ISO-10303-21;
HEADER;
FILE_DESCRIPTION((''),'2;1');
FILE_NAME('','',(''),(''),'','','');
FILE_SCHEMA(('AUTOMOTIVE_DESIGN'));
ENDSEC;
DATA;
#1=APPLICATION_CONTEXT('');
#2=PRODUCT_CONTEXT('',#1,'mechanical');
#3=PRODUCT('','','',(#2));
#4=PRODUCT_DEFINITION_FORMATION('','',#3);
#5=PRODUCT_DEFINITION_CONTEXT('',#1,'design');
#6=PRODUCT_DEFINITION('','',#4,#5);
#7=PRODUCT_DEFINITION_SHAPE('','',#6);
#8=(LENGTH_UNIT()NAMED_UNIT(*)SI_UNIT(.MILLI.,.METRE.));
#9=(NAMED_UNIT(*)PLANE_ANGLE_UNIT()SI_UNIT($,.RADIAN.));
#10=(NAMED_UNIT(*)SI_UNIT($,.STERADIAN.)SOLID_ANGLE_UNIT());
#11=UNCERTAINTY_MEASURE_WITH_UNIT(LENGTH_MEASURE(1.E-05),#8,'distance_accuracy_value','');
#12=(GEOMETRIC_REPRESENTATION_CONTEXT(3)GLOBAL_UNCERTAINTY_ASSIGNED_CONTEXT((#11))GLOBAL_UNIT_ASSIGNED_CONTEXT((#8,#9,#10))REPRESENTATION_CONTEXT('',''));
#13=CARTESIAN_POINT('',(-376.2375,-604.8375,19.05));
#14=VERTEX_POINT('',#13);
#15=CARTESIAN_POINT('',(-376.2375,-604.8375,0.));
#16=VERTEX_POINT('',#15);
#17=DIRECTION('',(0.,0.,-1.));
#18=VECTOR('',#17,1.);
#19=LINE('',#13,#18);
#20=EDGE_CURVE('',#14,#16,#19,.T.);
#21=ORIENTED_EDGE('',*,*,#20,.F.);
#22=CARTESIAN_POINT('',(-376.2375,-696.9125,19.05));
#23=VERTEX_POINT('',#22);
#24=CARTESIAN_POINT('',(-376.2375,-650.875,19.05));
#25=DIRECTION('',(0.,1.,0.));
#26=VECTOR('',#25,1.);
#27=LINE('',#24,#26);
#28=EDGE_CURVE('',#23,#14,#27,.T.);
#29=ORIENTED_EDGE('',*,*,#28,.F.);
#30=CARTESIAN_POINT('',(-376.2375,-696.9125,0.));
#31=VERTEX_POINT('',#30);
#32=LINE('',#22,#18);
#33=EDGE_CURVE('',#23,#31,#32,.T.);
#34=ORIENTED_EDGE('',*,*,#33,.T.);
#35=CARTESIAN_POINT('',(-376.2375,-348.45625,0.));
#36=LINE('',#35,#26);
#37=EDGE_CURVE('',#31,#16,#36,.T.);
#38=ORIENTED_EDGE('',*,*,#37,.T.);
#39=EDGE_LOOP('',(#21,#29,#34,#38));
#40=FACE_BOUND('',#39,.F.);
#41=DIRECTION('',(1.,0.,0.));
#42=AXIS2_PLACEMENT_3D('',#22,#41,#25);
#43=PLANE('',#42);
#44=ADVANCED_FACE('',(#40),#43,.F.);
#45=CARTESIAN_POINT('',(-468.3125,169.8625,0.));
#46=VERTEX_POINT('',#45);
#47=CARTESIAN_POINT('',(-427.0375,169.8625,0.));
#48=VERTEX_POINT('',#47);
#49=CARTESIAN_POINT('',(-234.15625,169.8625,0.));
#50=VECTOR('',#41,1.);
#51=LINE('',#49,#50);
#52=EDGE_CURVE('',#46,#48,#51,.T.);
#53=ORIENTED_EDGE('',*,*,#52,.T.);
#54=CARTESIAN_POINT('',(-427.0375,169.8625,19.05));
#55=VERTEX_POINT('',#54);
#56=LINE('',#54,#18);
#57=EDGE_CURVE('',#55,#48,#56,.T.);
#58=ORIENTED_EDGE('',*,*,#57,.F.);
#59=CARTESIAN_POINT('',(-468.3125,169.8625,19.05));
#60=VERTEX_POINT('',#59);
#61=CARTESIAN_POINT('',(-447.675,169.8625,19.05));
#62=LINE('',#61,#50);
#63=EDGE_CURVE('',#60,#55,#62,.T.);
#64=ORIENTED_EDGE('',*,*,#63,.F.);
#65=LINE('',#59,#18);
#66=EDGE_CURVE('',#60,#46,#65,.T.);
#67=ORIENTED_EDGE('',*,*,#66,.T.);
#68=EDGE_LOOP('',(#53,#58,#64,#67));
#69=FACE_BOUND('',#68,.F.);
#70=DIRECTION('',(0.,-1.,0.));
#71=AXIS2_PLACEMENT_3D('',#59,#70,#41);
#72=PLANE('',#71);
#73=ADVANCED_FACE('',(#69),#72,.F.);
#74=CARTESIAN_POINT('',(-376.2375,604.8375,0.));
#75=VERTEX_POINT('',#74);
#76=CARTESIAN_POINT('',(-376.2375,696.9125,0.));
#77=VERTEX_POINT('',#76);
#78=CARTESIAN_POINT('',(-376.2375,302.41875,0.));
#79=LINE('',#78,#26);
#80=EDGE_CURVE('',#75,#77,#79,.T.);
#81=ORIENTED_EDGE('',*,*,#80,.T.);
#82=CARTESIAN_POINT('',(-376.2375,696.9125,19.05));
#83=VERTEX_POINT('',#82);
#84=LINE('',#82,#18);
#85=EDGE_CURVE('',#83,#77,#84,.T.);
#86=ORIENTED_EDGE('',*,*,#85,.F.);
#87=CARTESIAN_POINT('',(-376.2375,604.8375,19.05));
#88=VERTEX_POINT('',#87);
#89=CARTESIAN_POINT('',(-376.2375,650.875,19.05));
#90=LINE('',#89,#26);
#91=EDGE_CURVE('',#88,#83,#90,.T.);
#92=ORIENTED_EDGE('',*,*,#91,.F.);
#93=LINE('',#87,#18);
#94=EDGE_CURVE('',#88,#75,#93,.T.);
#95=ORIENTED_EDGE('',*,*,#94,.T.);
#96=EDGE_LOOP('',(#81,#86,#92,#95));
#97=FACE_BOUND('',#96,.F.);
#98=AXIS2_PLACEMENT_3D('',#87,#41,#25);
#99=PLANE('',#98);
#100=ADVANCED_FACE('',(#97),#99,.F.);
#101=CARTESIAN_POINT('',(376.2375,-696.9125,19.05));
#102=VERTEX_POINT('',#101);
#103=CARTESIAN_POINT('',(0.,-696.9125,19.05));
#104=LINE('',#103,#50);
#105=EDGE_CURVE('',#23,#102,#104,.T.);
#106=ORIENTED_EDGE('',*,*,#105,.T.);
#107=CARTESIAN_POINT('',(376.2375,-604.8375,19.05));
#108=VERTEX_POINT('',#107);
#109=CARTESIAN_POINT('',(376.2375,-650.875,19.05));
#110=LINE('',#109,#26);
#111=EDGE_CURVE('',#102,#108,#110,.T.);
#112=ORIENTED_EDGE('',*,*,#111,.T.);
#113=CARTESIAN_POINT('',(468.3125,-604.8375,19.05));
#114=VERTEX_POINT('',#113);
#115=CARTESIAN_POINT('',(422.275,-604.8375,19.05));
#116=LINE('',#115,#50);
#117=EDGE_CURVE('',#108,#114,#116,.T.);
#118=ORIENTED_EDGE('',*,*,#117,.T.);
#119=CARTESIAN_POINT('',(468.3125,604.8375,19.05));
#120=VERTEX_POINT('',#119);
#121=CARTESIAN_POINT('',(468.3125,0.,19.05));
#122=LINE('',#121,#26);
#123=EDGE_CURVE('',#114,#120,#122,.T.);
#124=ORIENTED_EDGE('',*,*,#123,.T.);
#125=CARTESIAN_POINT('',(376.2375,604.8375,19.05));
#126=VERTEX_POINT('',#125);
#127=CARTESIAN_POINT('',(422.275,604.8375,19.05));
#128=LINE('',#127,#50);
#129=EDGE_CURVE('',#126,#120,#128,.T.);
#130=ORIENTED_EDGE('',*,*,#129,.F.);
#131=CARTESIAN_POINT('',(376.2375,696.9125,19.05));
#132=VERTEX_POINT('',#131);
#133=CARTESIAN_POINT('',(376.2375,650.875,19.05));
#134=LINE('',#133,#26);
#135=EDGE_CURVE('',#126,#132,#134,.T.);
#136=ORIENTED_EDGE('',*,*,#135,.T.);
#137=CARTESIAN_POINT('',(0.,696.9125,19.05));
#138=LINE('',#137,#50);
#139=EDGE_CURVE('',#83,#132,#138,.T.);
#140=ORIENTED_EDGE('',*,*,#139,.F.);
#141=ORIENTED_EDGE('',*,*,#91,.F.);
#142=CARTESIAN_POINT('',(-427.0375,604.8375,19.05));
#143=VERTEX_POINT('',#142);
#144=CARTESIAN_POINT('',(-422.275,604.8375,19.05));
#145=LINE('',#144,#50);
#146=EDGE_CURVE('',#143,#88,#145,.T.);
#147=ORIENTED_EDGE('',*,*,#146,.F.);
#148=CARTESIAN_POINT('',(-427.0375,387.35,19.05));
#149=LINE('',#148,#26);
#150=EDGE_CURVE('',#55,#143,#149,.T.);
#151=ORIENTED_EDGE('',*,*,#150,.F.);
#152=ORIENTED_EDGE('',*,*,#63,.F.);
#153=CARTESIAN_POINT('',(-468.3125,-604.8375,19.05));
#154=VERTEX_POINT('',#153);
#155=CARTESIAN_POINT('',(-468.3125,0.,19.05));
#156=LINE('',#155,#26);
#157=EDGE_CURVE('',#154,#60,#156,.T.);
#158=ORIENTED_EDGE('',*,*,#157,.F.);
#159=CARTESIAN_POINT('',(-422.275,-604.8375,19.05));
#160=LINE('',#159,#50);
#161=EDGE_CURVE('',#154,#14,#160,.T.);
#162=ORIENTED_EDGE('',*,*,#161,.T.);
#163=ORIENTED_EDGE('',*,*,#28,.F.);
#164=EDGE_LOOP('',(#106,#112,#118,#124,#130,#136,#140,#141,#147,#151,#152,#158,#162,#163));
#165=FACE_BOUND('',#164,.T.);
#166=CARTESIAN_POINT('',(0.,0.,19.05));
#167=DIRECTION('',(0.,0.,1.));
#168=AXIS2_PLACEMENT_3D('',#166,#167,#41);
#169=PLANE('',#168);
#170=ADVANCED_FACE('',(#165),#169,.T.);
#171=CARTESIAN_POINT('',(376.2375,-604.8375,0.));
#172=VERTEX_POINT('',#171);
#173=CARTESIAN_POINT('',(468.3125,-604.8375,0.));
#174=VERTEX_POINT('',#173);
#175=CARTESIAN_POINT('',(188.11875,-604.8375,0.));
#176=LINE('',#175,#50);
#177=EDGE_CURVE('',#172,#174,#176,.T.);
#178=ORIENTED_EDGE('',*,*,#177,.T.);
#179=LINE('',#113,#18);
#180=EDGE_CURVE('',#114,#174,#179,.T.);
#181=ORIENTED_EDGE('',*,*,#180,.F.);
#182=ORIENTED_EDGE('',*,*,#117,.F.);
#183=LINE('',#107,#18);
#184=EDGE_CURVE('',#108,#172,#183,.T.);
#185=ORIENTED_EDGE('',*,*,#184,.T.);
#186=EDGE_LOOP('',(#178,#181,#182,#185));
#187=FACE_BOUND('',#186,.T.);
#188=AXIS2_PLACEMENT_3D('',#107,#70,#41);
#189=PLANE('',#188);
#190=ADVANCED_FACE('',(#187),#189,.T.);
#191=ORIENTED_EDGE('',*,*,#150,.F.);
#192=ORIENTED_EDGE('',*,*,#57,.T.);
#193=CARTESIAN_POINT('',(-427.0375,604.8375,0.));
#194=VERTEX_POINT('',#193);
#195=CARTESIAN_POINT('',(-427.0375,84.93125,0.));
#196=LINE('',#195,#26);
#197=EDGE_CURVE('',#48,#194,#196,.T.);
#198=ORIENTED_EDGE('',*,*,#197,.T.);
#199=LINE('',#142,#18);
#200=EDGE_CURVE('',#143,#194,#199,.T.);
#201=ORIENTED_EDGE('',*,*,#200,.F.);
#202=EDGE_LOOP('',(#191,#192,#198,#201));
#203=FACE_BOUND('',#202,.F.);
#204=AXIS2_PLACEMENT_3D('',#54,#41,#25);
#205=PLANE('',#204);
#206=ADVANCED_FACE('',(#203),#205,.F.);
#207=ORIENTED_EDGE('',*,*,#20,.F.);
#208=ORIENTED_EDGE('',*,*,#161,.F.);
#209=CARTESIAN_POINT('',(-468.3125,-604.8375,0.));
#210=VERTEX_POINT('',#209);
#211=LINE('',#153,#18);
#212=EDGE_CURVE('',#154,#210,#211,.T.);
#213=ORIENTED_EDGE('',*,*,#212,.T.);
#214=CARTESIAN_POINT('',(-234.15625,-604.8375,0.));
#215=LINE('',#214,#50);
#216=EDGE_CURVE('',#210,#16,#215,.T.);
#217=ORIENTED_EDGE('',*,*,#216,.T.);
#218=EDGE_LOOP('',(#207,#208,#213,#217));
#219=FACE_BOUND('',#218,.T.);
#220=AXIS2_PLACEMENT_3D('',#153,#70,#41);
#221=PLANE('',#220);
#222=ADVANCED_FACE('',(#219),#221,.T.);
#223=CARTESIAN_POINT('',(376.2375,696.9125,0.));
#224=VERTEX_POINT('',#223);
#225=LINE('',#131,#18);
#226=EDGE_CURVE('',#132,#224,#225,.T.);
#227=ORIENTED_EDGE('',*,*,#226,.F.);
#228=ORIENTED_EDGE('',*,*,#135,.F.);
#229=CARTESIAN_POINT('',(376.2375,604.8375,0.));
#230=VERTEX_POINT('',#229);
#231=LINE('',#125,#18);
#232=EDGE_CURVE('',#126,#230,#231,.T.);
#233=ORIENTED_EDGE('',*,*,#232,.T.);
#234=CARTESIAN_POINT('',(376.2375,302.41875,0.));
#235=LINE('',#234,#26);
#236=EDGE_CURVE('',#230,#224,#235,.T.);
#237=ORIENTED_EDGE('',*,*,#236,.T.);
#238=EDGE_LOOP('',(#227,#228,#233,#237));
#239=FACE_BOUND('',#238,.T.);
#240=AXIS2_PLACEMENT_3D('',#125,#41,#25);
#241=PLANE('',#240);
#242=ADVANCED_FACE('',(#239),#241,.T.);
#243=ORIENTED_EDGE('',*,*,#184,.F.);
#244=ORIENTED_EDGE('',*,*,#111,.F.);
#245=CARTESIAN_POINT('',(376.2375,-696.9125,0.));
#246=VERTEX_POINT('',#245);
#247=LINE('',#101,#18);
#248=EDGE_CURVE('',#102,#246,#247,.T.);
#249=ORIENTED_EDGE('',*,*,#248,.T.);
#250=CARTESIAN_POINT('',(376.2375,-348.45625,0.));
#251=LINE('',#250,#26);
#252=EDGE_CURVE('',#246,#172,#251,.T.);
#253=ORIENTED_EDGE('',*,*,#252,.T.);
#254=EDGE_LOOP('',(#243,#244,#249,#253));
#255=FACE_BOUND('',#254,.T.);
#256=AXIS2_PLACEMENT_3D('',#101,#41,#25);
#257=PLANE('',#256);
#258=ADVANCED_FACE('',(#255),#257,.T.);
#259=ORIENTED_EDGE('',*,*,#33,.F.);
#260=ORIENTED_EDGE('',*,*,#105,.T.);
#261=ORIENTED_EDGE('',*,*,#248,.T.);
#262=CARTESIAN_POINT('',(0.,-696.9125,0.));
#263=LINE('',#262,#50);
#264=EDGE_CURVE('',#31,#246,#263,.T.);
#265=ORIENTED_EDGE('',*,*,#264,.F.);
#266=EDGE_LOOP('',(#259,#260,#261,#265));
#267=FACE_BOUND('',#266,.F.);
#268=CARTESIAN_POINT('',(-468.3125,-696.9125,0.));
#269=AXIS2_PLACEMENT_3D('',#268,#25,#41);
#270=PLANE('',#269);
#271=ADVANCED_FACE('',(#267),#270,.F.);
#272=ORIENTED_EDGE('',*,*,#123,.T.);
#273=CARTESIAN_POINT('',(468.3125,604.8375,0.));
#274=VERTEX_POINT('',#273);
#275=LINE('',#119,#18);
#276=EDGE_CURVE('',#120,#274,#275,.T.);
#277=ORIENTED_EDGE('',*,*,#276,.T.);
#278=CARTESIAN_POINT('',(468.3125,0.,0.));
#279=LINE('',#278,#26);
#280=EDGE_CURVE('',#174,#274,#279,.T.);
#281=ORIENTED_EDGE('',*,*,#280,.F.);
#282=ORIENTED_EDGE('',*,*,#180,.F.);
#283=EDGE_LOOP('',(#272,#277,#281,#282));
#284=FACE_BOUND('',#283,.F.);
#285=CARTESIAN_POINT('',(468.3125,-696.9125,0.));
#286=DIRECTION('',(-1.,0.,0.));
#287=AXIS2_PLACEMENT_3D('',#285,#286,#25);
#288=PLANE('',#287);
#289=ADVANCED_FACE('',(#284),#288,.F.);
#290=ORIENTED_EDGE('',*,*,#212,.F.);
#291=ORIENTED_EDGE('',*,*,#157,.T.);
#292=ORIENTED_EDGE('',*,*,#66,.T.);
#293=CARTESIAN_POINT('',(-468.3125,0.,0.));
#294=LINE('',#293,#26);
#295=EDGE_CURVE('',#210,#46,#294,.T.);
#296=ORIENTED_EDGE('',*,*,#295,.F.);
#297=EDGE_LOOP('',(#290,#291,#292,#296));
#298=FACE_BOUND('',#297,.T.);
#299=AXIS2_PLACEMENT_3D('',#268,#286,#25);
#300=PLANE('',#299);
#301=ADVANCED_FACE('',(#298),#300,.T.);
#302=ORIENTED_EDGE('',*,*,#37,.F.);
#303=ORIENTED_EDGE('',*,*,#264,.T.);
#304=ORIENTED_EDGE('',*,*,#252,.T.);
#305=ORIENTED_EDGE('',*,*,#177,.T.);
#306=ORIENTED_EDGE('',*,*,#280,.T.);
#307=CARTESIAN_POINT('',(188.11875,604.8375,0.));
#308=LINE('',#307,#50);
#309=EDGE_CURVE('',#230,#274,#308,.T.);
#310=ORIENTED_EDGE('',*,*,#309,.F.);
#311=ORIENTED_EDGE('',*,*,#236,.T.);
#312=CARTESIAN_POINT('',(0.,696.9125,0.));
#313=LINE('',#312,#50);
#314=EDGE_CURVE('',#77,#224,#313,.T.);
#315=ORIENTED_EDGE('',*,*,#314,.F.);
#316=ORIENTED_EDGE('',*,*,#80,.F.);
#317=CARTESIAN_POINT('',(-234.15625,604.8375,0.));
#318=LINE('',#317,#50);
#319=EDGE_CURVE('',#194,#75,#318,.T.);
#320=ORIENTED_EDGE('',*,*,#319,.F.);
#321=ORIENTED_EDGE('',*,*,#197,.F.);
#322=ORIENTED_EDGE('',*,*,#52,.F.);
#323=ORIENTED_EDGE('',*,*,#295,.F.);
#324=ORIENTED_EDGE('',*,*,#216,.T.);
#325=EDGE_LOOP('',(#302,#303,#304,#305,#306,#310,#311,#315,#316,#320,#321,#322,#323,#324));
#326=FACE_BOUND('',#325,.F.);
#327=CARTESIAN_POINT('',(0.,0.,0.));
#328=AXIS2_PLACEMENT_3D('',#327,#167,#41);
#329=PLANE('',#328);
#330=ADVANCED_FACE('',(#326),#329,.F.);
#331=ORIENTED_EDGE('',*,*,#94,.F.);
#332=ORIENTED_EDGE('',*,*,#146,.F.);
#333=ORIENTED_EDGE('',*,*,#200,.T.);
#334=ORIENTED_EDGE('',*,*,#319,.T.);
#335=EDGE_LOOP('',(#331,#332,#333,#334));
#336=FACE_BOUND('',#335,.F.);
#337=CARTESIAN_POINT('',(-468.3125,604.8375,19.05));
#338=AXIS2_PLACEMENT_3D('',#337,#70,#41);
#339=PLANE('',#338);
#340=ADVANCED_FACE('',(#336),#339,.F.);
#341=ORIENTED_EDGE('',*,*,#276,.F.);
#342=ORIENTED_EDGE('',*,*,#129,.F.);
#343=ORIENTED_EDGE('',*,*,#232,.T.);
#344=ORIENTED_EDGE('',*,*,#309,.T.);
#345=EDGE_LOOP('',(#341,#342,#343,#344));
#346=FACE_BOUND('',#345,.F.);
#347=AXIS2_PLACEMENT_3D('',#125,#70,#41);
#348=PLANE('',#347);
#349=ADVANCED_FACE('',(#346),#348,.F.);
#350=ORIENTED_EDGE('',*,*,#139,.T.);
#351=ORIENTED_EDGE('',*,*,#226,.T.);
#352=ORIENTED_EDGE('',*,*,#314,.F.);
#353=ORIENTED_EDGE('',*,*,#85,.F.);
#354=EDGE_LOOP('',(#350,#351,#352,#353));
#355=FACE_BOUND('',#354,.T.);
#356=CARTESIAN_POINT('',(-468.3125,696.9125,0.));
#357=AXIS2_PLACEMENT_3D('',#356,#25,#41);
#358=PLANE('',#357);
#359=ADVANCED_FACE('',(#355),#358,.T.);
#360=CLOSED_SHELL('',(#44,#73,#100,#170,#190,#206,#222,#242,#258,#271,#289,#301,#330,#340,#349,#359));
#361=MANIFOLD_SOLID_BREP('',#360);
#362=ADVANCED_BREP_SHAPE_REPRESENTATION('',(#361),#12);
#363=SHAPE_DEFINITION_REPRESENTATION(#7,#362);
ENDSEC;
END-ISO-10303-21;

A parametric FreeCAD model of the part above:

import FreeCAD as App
import Part
import Sketcher
Q = App.Units.Quantity

doc = App.newDocument("Part")
body = doc.addObject("PartDesign::Body", "Body")

sketch1 = body.newObject("Sketcher::SketchObject", "Sketch")
sketch1.AttachmentSupport = (doc.getObject("XY_Plane"), [""])
sketch1.MapMode = "FlatFace"
sketch1.addGeometry([
    Part.LineSegment(App.Vector(-468, 697, 0), App.Vector(-468, -697, 0)),
    Part.LineSegment(App.Vector(-468, -697, 0), App.Vector(468, -697, 0)),
    Part.LineSegment(App.Vector(468, -697, 0), App.Vector(468, 697, 0)),
    Part.LineSegment(App.Vector(468, 697, 0), App.Vector(-468, 697, 0)),
], False)
sketch1.addConstraint([
    Sketcher.Constraint("Coincident", 0, 2, 1, 1),
    Sketcher.Constraint("Coincident", 1, 2, 2, 1),
    Sketcher.Constraint("Coincident", 2, 2, 3, 1),
    Sketcher.Constraint("Coincident", 3, 2, 0, 1),
    Sketcher.Constraint("Vertical", 0),
    Sketcher.Constraint("Horizontal", 1),
    Sketcher.Constraint("Vertical", 2),
    Sketcher.Constraint("Horizontal", 3),
    Sketcher.Constraint("Symmetric", 0, 2, 2, 2, -1, 1),
    Sketcher.Constraint("DistanceX", 1, 1, 1, 2, Q("36.875 in")),
    Sketcher.Constraint("DistanceY", 0, 2, 0, 1, Q("54.875 in")),
])
pad1 = body.newObject("PartDesign::Pad", "Pad")
pad1.Profile = sketch1
pad1.Length = Q("0.75 in")

sketch2 = body.newObject("Sketcher::SketchObject", "Sketch001")
sketch2.AttachmentSupport = (doc.getObject("XY_Plane"), [""])
sketch2.MapMode = "FlatFace"
sketch2.AttachmentOffset = App.Placement(App.Vector(0, 0, 0.75 * 25.4), App.Rotation())
sketch2.addGeometry([
    Part.LineSegment(App.Vector(-468, 697, 0), App.Vector(-468, 605, 0)),
    Part.LineSegment(App.Vector(-468, 605, 0), App.Vector(-376, 605, 0)),
    Part.LineSegment(App.Vector(-376, 605, 0), App.Vector(-376, 697, 0)),
    Part.LineSegment(App.Vector(-376, 697, 0), App.Vector(-468, 697, 0)),
    Part.LineSegment(App.Vector(376, 697, 0), App.Vector(376, 605, 0)),
    Part.LineSegment(App.Vector(376, 605, 0), App.Vector(468, 605, 0)),
    Part.LineSegment(App.Vector(468, 605, 0), App.Vector(468, 697, 0)),
    Part.LineSegment(App.Vector(468, 697, 0), App.Vector(376, 697, 0)),
    Part.LineSegment(App.Vector(376, -605, 0), App.Vector(376, -697, 0)),
    Part.LineSegment(App.Vector(376, -697, 0), App.Vector(468, -697, 0)),
    Part.LineSegment(App.Vector(468, -697, 0), App.Vector(468, -605, 0)),
    Part.LineSegment(App.Vector(468, -605, 0), App.Vector(376, -605, 0)),
    Part.LineSegment(App.Vector(-468, -605, 0), App.Vector(-468, -697, 0)),
    Part.LineSegment(App.Vector(-468, -697, 0), App.Vector(-376, -697, 0)),
    Part.LineSegment(App.Vector(-376, -697, 0), App.Vector(-376, -605, 0)),
    Part.LineSegment(App.Vector(-376, -605, 0), App.Vector(-468, -605, 0)),
], False)
sketch2.addConstraint([
    Sketcher.Constraint("Coincident", 0, 2, 1, 1),
    Sketcher.Constraint("Coincident", 1, 2, 2, 1),
    Sketcher.Constraint("Coincident", 2, 2, 3, 1),
    Sketcher.Constraint("Coincident", 3, 2, 0, 1),
    Sketcher.Constraint("Coincident", 4, 2, 5, 1),
    Sketcher.Constraint("Coincident", 5, 2, 6, 1),
    Sketcher.Constraint("Coincident", 6, 2, 7, 1),
    Sketcher.Constraint("Coincident", 7, 2, 4, 1),
    Sketcher.Constraint("Coincident", 8, 2, 9, 1),
    Sketcher.Constraint("Coincident", 9, 2, 10, 1),
    Sketcher.Constraint("Coincident", 10, 2, 11, 1),
    Sketcher.Constraint("Coincident", 11, 2, 8, 1),
    Sketcher.Constraint("Coincident", 12, 2, 13, 1),
    Sketcher.Constraint("Coincident", 13, 2, 14, 1),
    Sketcher.Constraint("Coincident", 14, 2, 15, 1),
    Sketcher.Constraint("Coincident", 15, 2, 12, 1),
    Sketcher.Constraint("Vertical", 0),
    Sketcher.Constraint("Horizontal", 1),
    Sketcher.Constraint("Vertical", 2),
    Sketcher.Constraint("Horizontal", 3),
    Sketcher.Constraint("Vertical", 4),
    Sketcher.Constraint("Horizontal", 5),
    Sketcher.Constraint("Vertical", 6),
    Sketcher.Constraint("Horizontal", 7),
    Sketcher.Constraint("Vertical", 8),
    Sketcher.Constraint("Horizontal", 9),
    Sketcher.Constraint("Vertical", 10),
    Sketcher.Constraint("Horizontal", 11),
    Sketcher.Constraint("Vertical", 12),
    Sketcher.Constraint("Horizontal", 13),
    Sketcher.Constraint("Vertical", 14),
    Sketcher.Constraint("Horizontal", 15),
    Sketcher.Constraint("Symmetric", 2, 2, 8, 2, -1, 1),
    Sketcher.Constraint("Symmetric", 0, 2, 10, 2, -1, 1),
    Sketcher.Constraint("Symmetric", 6, 2, 12, 2, -1, 1),
    Sketcher.Constraint("Symmetric", 4, 2, 14, 2, -1, 1),
    Sketcher.Constraint("Symmetric", 1, 2, 4, 2, -2),
    Sketcher.Constraint("Symmetric", 3, 2, 6, 2, -2),
    Sketcher.Constraint("Equal", 15, 0),
    Sketcher.Constraint("DistanceX", 1, 1, 1, 2, Q("3.625 in")),
    Sketcher.Constraint("DistanceX", 0, 2, 4, 2, Q("33.25 in")),
    Sketcher.Constraint("DistanceY", 8, 2, 4, 2, Q("51.25 in")),
])
pocket1 = body.newObject("PartDesign::Pocket", "Pocket")
pocket1.Profile = sketch2
pocket1.Type = "ThroughAll"

sketch3 = body.newObject("Sketcher::SketchObject", "Sketch002")
sketch3.AttachmentSupport = (doc.getObject("XY_Plane"), [""])
sketch3.MapMode = "FlatFace"
sketch3.AttachmentOffset = App.Placement(App.Vector(0, 0, 0.75 * 25.4), App.Rotation())
sketch3.addGeometry([
    Part.LineSegment(App.Vector(-468, 605, 0), App.Vector(-468, 170, 0)),
    Part.LineSegment(App.Vector(-468, 170, 0), App.Vector(-427, 170, 0)),
    Part.LineSegment(App.Vector(-427, 170, 0), App.Vector(-427, 605, 0)),
    Part.LineSegment(App.Vector(-427, 605, 0), App.Vector(-468, 605, 0)),
], False)
sketch3.addConstraint([
    Sketcher.Constraint("Coincident", 0, 2, 1, 1),
    Sketcher.Constraint("Coincident", 1, 2, 2, 1),
    Sketcher.Constraint("Coincident", 2, 2, 3, 1),
    Sketcher.Constraint("Coincident", 3, 2, 0, 1),
    Sketcher.Constraint("Vertical", 0),
    Sketcher.Constraint("Horizontal", 1),
    Sketcher.Constraint("Vertical", 2),
    Sketcher.Constraint("Horizontal", 3),
    Sketcher.Constraint("DistanceX", 1, 1, 1, 2, Q("1.625 in")),
    Sketcher.Constraint("DistanceY", 0, 2, 0, 1, Q("17.125 in")),
    Sketcher.Constraint("DistanceX", 0, 2, -1, 1, Q("18.4375 in")),
    Sketcher.Constraint("DistanceY", -1, 1, 0, 2, Q("6.6875 in")),
])
pocket2 = body.newObject("PartDesign::Pocket", "Pocket001")
pocket2.Profile = sketch3
pocket2.Type = "ThroughAll"

doc.recompute()
